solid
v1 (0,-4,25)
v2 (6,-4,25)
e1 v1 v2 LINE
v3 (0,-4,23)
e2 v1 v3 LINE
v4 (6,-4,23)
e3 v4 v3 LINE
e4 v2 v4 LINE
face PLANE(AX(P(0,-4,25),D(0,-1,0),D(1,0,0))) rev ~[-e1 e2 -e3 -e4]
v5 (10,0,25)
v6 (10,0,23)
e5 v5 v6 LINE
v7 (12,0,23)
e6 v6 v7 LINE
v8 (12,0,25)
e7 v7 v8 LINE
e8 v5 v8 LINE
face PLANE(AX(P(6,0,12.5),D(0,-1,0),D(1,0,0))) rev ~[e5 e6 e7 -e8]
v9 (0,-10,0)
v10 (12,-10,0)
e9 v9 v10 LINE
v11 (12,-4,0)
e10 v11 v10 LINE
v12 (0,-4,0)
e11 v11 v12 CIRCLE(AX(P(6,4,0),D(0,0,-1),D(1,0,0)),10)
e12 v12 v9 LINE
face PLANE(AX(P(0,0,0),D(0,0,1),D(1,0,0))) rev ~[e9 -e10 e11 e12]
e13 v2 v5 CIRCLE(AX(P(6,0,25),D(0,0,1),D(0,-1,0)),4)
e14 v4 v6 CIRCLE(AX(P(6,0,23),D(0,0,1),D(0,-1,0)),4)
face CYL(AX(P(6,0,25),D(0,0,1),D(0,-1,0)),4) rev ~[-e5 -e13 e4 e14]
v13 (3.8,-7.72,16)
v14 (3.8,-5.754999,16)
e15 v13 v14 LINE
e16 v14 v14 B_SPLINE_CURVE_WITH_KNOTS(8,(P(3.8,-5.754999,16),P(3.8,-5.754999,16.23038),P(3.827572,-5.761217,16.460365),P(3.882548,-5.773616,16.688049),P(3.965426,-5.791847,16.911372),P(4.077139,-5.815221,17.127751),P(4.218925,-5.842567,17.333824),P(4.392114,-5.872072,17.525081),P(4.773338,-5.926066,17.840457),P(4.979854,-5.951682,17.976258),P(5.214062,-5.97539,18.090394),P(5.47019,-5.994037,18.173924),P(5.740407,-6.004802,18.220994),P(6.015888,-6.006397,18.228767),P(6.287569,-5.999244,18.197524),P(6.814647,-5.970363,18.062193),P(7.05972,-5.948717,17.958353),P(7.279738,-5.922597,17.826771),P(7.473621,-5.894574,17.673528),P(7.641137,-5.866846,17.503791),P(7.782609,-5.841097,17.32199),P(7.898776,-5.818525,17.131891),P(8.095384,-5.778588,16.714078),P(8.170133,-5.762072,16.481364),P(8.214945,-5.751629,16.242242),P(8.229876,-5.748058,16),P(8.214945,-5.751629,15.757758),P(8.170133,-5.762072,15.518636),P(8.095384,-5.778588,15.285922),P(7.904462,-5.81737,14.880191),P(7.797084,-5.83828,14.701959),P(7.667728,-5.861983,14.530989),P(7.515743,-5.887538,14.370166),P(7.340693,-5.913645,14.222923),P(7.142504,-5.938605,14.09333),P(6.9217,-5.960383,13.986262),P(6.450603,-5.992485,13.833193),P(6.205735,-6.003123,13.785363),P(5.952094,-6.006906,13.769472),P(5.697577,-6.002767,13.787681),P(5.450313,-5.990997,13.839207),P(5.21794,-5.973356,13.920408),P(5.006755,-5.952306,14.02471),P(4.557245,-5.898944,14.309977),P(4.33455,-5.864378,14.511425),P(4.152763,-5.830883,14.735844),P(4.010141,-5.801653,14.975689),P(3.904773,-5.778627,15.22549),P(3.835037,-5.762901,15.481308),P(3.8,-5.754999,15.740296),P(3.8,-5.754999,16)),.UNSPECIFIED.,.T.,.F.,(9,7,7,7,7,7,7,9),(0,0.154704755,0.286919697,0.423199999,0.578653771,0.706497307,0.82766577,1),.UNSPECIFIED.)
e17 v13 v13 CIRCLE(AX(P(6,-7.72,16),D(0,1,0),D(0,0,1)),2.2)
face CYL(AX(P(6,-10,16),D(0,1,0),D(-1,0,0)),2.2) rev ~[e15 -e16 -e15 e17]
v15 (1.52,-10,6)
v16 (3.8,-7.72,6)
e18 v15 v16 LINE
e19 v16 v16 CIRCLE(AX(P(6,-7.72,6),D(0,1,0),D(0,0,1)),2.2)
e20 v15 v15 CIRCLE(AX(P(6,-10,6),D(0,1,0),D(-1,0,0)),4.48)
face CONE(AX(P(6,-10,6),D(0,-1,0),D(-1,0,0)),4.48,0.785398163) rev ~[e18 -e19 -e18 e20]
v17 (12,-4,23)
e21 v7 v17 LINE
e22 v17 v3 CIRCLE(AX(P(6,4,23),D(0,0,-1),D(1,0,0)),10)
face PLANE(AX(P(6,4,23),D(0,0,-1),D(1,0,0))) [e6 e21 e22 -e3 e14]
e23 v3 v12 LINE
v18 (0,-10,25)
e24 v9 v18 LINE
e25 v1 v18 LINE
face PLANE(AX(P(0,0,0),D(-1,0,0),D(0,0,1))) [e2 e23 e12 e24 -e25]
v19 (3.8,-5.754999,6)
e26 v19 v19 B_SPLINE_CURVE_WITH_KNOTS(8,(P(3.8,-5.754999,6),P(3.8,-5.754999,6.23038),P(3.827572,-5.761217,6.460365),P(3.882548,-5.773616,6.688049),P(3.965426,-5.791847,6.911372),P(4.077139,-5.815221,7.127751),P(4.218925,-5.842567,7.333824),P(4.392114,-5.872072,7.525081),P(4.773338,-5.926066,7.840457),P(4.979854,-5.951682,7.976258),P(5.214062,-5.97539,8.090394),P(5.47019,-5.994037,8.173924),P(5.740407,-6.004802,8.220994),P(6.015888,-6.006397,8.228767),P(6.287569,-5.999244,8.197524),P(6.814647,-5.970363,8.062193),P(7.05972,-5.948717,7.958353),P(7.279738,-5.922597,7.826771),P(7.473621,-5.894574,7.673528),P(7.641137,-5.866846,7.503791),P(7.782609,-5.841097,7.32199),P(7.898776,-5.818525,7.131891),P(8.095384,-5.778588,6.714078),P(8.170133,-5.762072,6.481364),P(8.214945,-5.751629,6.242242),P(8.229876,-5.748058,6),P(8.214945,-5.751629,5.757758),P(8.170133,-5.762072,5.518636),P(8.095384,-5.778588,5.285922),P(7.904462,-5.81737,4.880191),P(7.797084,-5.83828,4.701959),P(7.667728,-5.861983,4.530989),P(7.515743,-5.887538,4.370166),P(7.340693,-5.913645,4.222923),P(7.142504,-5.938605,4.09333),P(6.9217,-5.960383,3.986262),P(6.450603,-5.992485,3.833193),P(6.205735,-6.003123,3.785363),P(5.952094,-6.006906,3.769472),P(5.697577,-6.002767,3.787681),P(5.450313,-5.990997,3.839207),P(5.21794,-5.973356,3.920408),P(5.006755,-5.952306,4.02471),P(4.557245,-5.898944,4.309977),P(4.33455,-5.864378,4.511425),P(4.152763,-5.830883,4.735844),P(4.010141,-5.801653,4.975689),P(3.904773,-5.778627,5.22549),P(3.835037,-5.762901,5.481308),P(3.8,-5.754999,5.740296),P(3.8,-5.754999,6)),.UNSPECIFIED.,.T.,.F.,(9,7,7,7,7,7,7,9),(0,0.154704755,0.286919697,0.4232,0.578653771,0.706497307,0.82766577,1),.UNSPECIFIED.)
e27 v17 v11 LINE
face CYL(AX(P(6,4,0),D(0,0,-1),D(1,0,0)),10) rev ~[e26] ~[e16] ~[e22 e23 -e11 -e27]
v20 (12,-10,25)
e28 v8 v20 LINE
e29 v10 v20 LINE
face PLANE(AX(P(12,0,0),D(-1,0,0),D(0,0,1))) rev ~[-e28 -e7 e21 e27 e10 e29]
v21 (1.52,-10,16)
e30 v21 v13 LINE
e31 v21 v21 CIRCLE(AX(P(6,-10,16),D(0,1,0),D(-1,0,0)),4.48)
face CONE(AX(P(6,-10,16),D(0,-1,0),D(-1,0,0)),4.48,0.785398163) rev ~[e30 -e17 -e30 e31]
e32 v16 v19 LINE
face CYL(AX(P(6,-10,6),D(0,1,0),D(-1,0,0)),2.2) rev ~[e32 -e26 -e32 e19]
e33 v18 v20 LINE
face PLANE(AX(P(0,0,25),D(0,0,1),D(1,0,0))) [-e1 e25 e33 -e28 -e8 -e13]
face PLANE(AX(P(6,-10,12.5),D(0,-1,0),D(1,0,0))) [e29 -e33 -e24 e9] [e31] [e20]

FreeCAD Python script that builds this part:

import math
import FreeCAD as App
import Part
import Sketcher
from FreeCAD import Vector

doc = App.newDocument("Part")
params = doc.addObject("Spreadsheet::Sheet", "Params")
for row, (alias, value) in enumerate([
    ("sketch1_width", "12 mm"),
    ("sketch1_height", "25 mm"),
    ("pad1_length", "10 mm"),
    ("sketch2_diameter", "20 mm"),
    ("pocket1_length", "23 mm"),
    ("sketch3_radius", "4 mm"),
    ("sketch3_width", "2 mm"),
    ("pocket2_length", "25 mm"),
    ("sketch4_diameter", "4.4 mm"),
    ("hole_diameter", "4.4 mm"),
    ("hole_csink_diameter", "8.96 mm"),
], start=1):
    params.set(f"A{row}", alias)
    params.set(f"B{row}", "=" + value)
    params.setAlias(f"B{row}", alias)

body = doc.addObject("PartDesign::Body", "Body")

# Sketch on XZ plane
sketch1 = doc.addObject("Sketcher::SketchObject", "Sketch")
body.addObject(sketch1)
sketch1.AttachmentSupport = (doc.XZ_Plane, [""])
sketch1.MapMode = "FlatFace"
sketch1.addGeometry(Part.LineSegment(Vector(0, 25, 0), Vector(0, 0, 0)), False)
sketch1.addGeometry(Part.LineSegment(Vector(0, 0, 0), Vector(12, 0, 0)), False)
sketch1.addGeometry(Part.LineSegment(Vector(12, 0, 0), Vector(12, 25, 0)), False)
sketch1.addGeometry(Part.LineSegment(Vector(12, 25, 0), Vector(0, 25, 0)), False)
sketch1.addConstraint(Sketcher.Constraint("Coincident", 0, 2, 1, 1))
sketch1.addConstraint(Sketcher.Constraint("Coincident", 1, 2, 2, 1))
sketch1.addConstraint(Sketcher.Constraint("Coincident", 2, 2, 3, 1))
sketch1.addConstraint(Sketcher.Constraint("Coincident", 3, 2, 0, 1))
sketch1.addConstraint(Sketcher.Constraint("Vertical", 0))
sketch1.addConstraint(Sketcher.Constraint("Horizontal", 1))
sketch1.addConstraint(Sketcher.Constraint("Vertical", 2))
sketch1.addConstraint(Sketcher.Constraint("Horizontal", 3))
sketch1.addConstraint(Sketcher.Constraint("Coincident", 0, 2, -1, 1))
sketch1.addConstraint(Sketcher.Constraint("DistanceX", 1, 1, 1, 2, 12.0))
sketch1.addConstraint(Sketcher.Constraint("DistanceY", 0, 2, 0, 1, 25.0))
sketch1.setExpression("Constraints[9]", "Params.sketch1_width")
sketch1.setExpression("Constraints[10]", "Params.sketch1_height")
pad1 = doc.addObject("PartDesign::Pad", "Pad")
body.addObject(pad1)
pad1.Profile = sketch1
pad1.setExpression("Length", "Params.pad1_length")

# Sketch on XY plane
sketch2 = doc.addObject("Sketcher::SketchObject", "Sketch001")
body.addObject(sketch2)
sketch2.AttachmentSupport = (doc.XY_Plane, [""])
sketch2.MapMode = "FlatFace"
sketch2.addGeometry(Part.Circle(Vector(6, 4, 0), Vector(0, 0, 1), 10), False)
sketch2.addConstraint(Sketcher.Constraint("Diameter", 0, 20.0))
sketch2.addConstraint(Sketcher.Constraint("DistanceX", -1, 1, 0, 3, 6.0))
sketch2.addConstraint(Sketcher.Constraint("DistanceY", -1, 1, 0, 3, 4.0))
sketch2.setExpression("Constraints[0]", "Params.sketch2_diameter")
pocket1 = doc.addObject("PartDesign::Pocket", "Pocket")
body.addObject(pocket1)
pocket1.Profile = sketch2
pocket1.setExpression("Length", "Params.pocket1_length")
pocket1.Reversed = True

# Sketch on XY plane
sketch3 = doc.addObject("Sketcher::SketchObject", "Sketch002")
body.addObject(sketch3)
sketch3.AttachmentSupport = (doc.XY_Plane, [""])
sketch3.MapMode = "FlatFace"
sketch3.AttachmentOffset = App.Placement(Vector(0, 0, 25), App.Rotation())
sketch3.addGeometry(Part.ArcOfCircle(Part.Circle(Vector(6, 0, 0), Vector(0, 0, 1), 4), math.radians(-90), math.radians(0)), False)
sketch3.addGeometry(Part.ArcOfCircle(Part.Circle(Vector(6, 0, 0), Vector(0, 0, 1), 4), math.radians(0), math.radians(180)), False)
sketch3.addGeometry(Part.LineSegment(Vector(2, 0, 0), Vector(0, 0, 0)), False)
sketch3.addGeometry(Part.LineSegment(Vector(0, 0, 0), Vector(0, -4, 0)), False)
sketch3.addGeometry(Part.LineSegment(Vector(0, -4, 0), Vector(6, -4, 0)), False)
sketch3.addConstraint(Sketcher.Constraint("Tangent", 0, 2, 1, 1))
sketch3.addConstraint(Sketcher.Constraint("Coincident", 1, 2, 2, 1))
sketch3.addConstraint(Sketcher.Constraint("Coincident", 2, 2, 3, 1))
sketch3.addConstraint(Sketcher.Constraint("Coincident", 3, 2, 4, 1))
sketch3.addConstraint(Sketcher.Constraint("Tangent", 4, 2, 0, 1))
sketch3.addConstraint(Sketcher.Constraint("Horizontal", 2))
sketch3.addConstraint(Sketcher.Constraint("Vertical", 3))
sketch3.addConstraint(Sketcher.Constraint("Horizontal", 4))
sketch3.addConstraint(Sketcher.Constraint("Coincident", 2, 2, -1, 1))
sketch3.addConstraint(Sketcher.Constraint("Equal", 0, 1))
sketch3.addConstraint(Sketcher.Constraint("PointOnObject", 0, 3, -1))
sketch3.addConstraint(Sketcher.Constraint("PointOnObject", 0, 2, -1))
sketch3.addConstraint(Sketcher.Constraint("Radius", 0, 4.0))
sketch3.addConstraint(Sketcher.Constraint("DistanceX", 2, 2, 2, 1, 2.0))
sketch3.setExpression("Constraints[12]", "Params.sketch3_radius")
sketch3.setExpression("Constraints[13]", "Params.sketch3_width")
pocket2 = doc.addObject("PartDesign::Pocket", "Pocket001")
body.addObject(pocket2)
pocket2.Profile = sketch3
pocket2.setExpression("Length", "Params.pocket2_length")

# Sketch on XZ plane
sketch4 = doc.addObject("Sketcher::SketchObject", "Sketch003")
body.addObject(sketch4)
sketch4.AttachmentSupport = (doc.XZ_Plane, [""])
sketch4.MapMode = "FlatFace"
sketch4.AttachmentOffset = App.Placement(Vector(0, 0, 10), App.Rotation())
sketch4.addGeometry(Part.Circle(Vector(6, 6, 0), Vector(0, 0, 1), 2.2), False)
sketch4.addGeometry(Part.Circle(Vector(6, 16, 0), Vector(0, 0, 1), 2.2), False)
sketch4.addConstraint(Sketcher.Constraint("Equal", 0, 1))
sketch4.addConstraint(Sketcher.Constraint("Vertical", 0, 3, 1, 3))
sketch4.addConstraint(Sketcher.Constraint("Diameter", 0, 4.4))
sketch4.addConstraint(Sketcher.Constraint("DistanceX", -1, 1, 0, 3, 6.0))
sketch4.addConstraint(Sketcher.Constraint("DistanceY", -1, 1, 0, 3, 6.0))
sketch4.addConstraint(Sketcher.Constraint("DistanceY", -1, 1, 1, 3, 16.0))
sketch4.setExpression("Constraints[2]", "Params.sketch4_diameter")
doc.recompute()
hole = doc.addObject("PartDesign::Hole", "Hole")
body.addObject(hole)
hole.Profile = sketch4
hole.ThreadType = "None"
hole.setExpression("Diameter", "Params.hole_diameter")
hole.DepthType = "ThroughAll"
hole.HoleCutType = "Countersink"
hole.setExpression("HoleCutDiameter", "Params.hole_csink_diameter")
hole.HoleCutCountersinkAngle = 90

doc.recompute()
